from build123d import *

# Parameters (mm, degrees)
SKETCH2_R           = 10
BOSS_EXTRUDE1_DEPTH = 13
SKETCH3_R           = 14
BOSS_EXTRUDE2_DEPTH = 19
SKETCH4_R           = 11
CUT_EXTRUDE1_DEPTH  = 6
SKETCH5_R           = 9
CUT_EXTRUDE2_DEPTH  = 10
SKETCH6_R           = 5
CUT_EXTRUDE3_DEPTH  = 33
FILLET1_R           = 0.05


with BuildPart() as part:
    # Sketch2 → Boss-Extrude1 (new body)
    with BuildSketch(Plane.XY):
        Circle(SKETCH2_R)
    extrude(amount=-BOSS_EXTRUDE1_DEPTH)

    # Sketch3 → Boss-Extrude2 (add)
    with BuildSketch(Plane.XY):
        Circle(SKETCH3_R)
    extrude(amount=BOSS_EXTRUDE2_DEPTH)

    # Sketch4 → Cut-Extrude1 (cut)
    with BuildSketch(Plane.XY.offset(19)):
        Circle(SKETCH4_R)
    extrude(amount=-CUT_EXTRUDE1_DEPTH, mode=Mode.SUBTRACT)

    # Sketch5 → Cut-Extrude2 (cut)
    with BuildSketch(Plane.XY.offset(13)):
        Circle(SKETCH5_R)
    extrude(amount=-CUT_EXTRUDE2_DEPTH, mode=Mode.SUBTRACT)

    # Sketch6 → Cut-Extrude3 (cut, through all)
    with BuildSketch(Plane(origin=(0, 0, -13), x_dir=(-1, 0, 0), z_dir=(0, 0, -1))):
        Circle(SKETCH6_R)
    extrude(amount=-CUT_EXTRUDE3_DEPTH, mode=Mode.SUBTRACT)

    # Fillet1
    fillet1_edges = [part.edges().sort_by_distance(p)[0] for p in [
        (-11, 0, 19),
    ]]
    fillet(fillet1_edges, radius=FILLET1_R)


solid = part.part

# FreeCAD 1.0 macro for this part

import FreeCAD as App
import Part
import Sketcher
Q = App.Units.Quantity


def edges_at(feature, points):
    """Names of the edges that pass closest to the given points."""
    edges = feature.Shape.Edges
    near = lambda p: min(range(len(edges)), key=lambda i: edges[i].distToShape(Part.Vertex(*p))[0])
    return sorted({f"Edge{near(p) + 1}" for p in points})

doc = App.newDocument("Part")
body = doc.addObject("PartDesign::Body", "Body")

# Sketch on XY plane
sketch1 = body.newObject("Sketcher::SketchObject", "Sketch")
sketch1.AttachmentSupport = (doc.getObject("XY_Plane"), [""])
sketch1.MapMode = "FlatFace"
sketch1.addGeometry(Part.Circle(App.Vector(0, 0, 0), App.Vector(0, 0, 1), 10), False)
sketch1.addConstraint([
    Sketcher.Constraint("Coincident", 0, 3, -1, 1),
    Sketcher.Constraint("Diameter", 0, Q("20 mm")),
])
pad1 = body.newObject("PartDesign::Pad", "Pad")
pad1.Profile = sketch1
pad1.Length = 13
pad1.Reversed = True

# Sketch on XY plane
sketch2 = body.newObject("Sketcher::SketchObject", "Sketch001")
sketch2.AttachmentSupport = (doc.getObject("XY_Plane"), [""])
sketch2.MapMode = "FlatFace"
sketch2.addGeometry(Part.Circle(App.Vector(0, 0, 0), App.Vector(0, 0, 1), 14), False)
sketch2.addConstraint([
    Sketcher.Constraint("Coincident", 0, 3, -1, 1),
    Sketcher.Constraint("Diameter", 0, Q("28 mm")),
])
pad2 = body.newObject("PartDesign::Pad", "Pad001")
pad2.Profile = sketch2
pad2.Length = 19

# Sketch on XY plane
sketch3 = body.newObject("Sketcher::SketchObject", "Sketch002")
sketch3.AttachmentSupport = (doc.getObject("XY_Plane"), [""])
sketch3.MapMode = "FlatFace"
sketch3.AttachmentOffset = App.Placement(App.Vector(0, 0, 19), App.Rotation())
sketch3.addGeometry(Part.Circle(App.Vector(0, 0, 0), App.Vector(0, 0, 1), 11), False)
sketch3.addConstraint([
    Sketcher.Constraint("Coincident", 0, 3, -1, 1),
    Sketcher.Constraint("Diameter", 0, Q("22 mm")),
])
pocket1 = body.newObject("PartDesign::Pocket", "Pocket")
pocket1.Profile = sketch3
pocket1.Length = 6

# Sketch on XY plane
sketch4 = body.newObject("Sketcher::SketchObject", "Sketch003")
sketch4.AttachmentSupport = (doc.getObject("XY_Plane"), [""])
sketch4.MapMode = "FlatFace"
sketch4.AttachmentOffset = App.Placement(App.Vector(0, 0, 13), App.Rotation())
sketch4.addGeometry(Part.Circle(App.Vector(0, 0, 0), App.Vector(0, 0, 1), 9), False)
sketch4.addConstraint([
    Sketcher.Constraint("Coincident", 0, 3, -1, 1),
    Sketcher.Constraint("Diameter", 0, Q("18 mm")),
])
pocket2 = body.newObject("PartDesign::Pocket", "Pocket001")
pocket2.Profile = sketch4
pocket2.Length = 10

# Sketch on XY plane
sketch5 = body.newObject("Sketcher::SketchObject", "Sketch004")
sketch5.AttachmentSupport = (doc.getObject("XY_Plane"), [""])
sketch5.MapMode = "FlatFace"
sketch5.AttachmentOffset = App.Placement(App.Vector(0, 0, -13), App.Rotation())
sketch5.addGeometry(Part.Circle(App.Vector(0, 0, 0), App.Vector(0, 0, 1), 5), False)
sketch5.addConstraint([
    Sketcher.Constraint("Coincident", 0, 3, -1, 1),
    Sketcher.Constraint("Diameter", 0, Q("10 mm")),
])
pocket3 = body.newObject("PartDesign::Pocket", "Pocket002")
pocket3.Profile = sketch5
pocket3.Type = "ThroughAll"
pocket3.Reversed = True
doc.recompute()

fillet = body.newObject("PartDesign::Fillet", "Fillet")
fillet.Base = (pocket3, edges_at(pocket3, [(-11, 0, 19)]))
fillet.Radius = 0.05

doc.recompute()
